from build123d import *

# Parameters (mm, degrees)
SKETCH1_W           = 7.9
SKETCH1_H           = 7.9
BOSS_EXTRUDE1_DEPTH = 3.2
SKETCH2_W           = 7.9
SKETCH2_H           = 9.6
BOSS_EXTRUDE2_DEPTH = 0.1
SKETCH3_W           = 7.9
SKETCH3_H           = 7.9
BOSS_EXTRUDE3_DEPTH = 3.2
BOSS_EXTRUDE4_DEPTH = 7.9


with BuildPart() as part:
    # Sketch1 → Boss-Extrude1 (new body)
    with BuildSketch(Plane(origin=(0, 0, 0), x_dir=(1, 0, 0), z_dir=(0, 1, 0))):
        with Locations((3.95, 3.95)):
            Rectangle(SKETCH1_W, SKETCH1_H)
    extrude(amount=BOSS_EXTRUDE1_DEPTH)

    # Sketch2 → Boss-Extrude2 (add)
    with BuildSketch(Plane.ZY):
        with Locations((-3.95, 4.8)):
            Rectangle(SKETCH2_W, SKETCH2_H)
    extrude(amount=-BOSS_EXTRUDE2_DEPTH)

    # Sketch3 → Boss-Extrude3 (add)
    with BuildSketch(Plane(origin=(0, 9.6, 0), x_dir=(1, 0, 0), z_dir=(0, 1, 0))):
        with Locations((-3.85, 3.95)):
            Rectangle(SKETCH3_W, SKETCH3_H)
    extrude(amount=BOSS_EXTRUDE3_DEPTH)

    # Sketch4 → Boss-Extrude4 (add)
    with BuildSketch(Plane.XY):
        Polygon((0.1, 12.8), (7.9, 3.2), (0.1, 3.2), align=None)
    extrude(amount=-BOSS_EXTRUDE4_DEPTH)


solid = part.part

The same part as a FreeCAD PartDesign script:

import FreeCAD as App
import Part
import Sketcher

V = App.Vector
Q = App.Units.Quantity


def add_polygon(sketch, points):
    """Adds a closed chain of lines whose ends are joined by coincident constraints."""
    first, n = sketch.GeometryCount, len(points)
    for a, b in zip(points, points[1:] + points[:1]):
        sketch.addGeometry(Part.LineSegment(App.Vector(*a, 0), App.Vector(*b, 0)), False)
    for i in range(n):
        sketch.addConstraint(Sketcher.Constraint("Coincident", first + i, 2, first + (i + 1) % n, 1))

doc = App.newDocument("Part")
body = doc.addObject("PartDesign::Body", "Body")

# Sketch on XZ plane
sketch1 = doc.addObject("Sketcher::SketchObject", "Sketch")
body.addObject(sketch1)
sketch1.AttachmentSupport = (doc.XZ_Plane, [""])
sketch1.MapMode = "FlatFace"
add_polygon(sketch1, [(0, -8), (0, 0), (8, 0), (8, -8)])  # lines 0-3
sketch1.addConstraint([
    Sketcher.Constraint("Vertical", 0),
    Sketcher.Constraint("Horizontal", 1),
    Sketcher.Constraint("Vertical", 2),
    Sketcher.Constraint("Horizontal", 3),
    Sketcher.Constraint("Coincident", 0, 2, -1, 1),
    Sketcher.Constraint("Equal", 3, 0),
    Sketcher.Constraint("DistanceX", 1, 1, 1, 2, Q("7.9 mm")),
])
pad1 = doc.addObject("PartDesign::Pad", "Pad")
body.addObject(pad1)
pad1.Profile = sketch1
pad1.Length = 3.2
pad1.Reversed = True

# Sketch on YZ plane
sketch2 = doc.addObject("Sketcher::SketchObject", "Sketch001")
body.addObject(sketch2)
sketch2.AttachmentSupport = (doc.YZ_Plane, [""])
sketch2.MapMode = "FlatFace"
add_polygon(sketch2, [(10, -8), (0, -8), (0, 0), (10, 0)])  # lines 0-3
sketch2.addConstraint([
    Sketcher.Constraint("Horizontal", 0),
    Sketcher.Constraint("Vertical", 1),
    Sketcher.Constraint("Horizontal", 2),
    Sketcher.Constraint("Vertical", 3),
    Sketcher.Constraint("Coincident", 1, 2, -1, 1),
    Sketcher.Constraint("DistanceX", 0, 2, 0, 1, Q("9.6 mm")),
    Sketcher.Constraint("DistanceY", 1, 1, 1, 2, Q("7.9 mm")),
])
pad2 = doc.addObject("PartDesign::Pad", "Pad001")
body.addObject(pad2)
pad2.Profile = sketch2
pad2.Length = 0.1

# Sketch on XZ plane
sketch3 = doc.addObject("Sketcher::SketchObject", "Sketch002")
body.addObject(sketch3)
sketch3.AttachmentSupport = (doc.XZ_Plane, [""])
sketch3.MapMode = "FlatFace"
sketch3.AttachmentOffset = App.Placement(V(0, 0, -9.6), App.Rotation())
add_polygon(sketch3, [(-8, -8), (-8, 0), (0, 0), (0, -8)])  # lines 0-3
sketch3.addConstraint([
    Sketcher.Constraint("Vertical", 0),
    Sketcher.Constraint("Horizontal", 1),
    Sketcher.Constraint("Vertical", 2),
    Sketcher.Constraint("Horizontal", 3),
    Sketcher.Constraint("PointOnObject", 0, 2, -1),
    Sketcher.Constraint("Equal", 3, 0),
    Sketcher.Constraint("DistanceX", 1, 1, 1, 2, Q("7.9 mm")),
    Sketcher.Constraint("DistanceX", 0, 2, -1, 1, Q("7.8 mm")),
])
pad3 = doc.addObject("PartDesign::Pad", "Pad002")
body.addObject(pad3)
pad3.Profile = sketch3
pad3.Length = 3.2
pad3.Reversed = True

# Sketch on XY plane
sketch4 = doc.addObject("Sketcher::SketchObject", "Sketch003")
body.addObject(sketch4)
sketch4.AttachmentSupport = (doc.XY_Plane, [""])
sketch4.MapMode = "FlatFace"
add_polygon(sketch4, [(8, 3), (0, 13), (0, 3)])  # lines 0-2
sketch4.addConstraint([
    Sketcher.Constraint("Vertical", 1),
    Sketcher.Constraint("Horizontal", 2),
    Sketcher.Constraint("DistanceX", 2, 1, 2, 2, Q("7.8 mm")),
    Sketcher.Constraint("DistanceY", 1, 2, 1, 1, Q("9.6 mm")),
    Sketcher.Constraint("DistanceX", -1, 1, 0, 2, Q("0.1 mm")),
    Sketcher.Constraint("DistanceY", -1, 1, 0, 2, Q("12.8 mm")),
])
pad4 = doc.addObject("PartDesign::Pad", "Pad003")
body.addObject(pad4)
pad4.Profile = sketch4
pad4.Length = 7.9
pad4.Reversed = True

doc.recompute()
